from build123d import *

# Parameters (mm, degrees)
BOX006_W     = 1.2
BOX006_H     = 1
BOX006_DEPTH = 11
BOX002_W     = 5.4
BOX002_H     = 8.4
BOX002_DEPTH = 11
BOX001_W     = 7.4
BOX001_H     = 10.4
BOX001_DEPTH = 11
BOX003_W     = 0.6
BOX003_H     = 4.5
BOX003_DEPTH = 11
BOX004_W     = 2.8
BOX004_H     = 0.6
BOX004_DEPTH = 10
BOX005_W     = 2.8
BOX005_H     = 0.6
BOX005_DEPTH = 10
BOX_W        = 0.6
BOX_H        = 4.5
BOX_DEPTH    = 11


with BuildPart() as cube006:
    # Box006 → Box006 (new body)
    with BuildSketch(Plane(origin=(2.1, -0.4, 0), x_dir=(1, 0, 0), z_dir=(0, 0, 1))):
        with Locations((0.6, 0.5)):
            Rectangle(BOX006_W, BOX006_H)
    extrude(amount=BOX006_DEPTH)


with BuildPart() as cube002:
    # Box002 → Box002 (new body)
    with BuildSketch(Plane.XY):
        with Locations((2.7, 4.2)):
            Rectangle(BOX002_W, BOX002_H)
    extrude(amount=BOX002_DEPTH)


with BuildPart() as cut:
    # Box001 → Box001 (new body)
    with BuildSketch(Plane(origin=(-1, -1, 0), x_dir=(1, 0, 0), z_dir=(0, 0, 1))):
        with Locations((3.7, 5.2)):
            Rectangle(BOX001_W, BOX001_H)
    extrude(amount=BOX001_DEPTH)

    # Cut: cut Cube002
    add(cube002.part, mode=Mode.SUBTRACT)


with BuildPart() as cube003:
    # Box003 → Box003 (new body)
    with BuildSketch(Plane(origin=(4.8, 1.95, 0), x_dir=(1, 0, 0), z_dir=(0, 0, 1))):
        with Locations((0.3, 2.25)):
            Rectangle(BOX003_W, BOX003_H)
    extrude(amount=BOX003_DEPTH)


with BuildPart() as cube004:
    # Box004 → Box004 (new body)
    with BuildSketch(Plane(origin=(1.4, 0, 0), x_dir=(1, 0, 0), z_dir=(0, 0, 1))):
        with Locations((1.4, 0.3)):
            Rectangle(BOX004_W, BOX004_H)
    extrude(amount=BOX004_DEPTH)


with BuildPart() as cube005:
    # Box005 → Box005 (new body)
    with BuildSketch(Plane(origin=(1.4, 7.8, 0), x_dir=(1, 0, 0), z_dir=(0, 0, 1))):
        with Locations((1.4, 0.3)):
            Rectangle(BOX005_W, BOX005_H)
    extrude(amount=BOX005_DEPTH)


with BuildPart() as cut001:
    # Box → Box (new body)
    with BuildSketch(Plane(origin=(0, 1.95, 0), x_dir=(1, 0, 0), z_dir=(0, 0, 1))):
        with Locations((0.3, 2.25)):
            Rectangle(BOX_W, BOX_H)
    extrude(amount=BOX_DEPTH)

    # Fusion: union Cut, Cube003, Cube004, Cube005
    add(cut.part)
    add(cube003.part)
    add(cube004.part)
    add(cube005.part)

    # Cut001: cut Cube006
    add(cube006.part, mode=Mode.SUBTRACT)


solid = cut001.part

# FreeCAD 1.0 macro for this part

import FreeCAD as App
import Part
import Sketcher
Q = App.Units.Quantity


def add_polygon(sketch, points):
    """Adds a closed chain of lines whose ends are joined by coincident constraints."""
    first, n = sketch.GeometryCount, len(points)
    for a, b in zip(points, points[1:] + points[:1]):
        sketch.addGeometry(Part.LineSegment(App.Vector(*a, 0), App.Vector(*b, 0)), False)
    for i in range(n):
        sketch.addConstraint(Sketcher.Constraint("Coincident", first + i, 2, first + (i + 1) % n, 1))

doc = App.newDocument("Part")
params = doc.addObject("Spreadsheet::Sheet", "Params")
for row, (alias, value) in enumerate([
    ("sketch1_height", "1 mm"),
    ("sketch1_width", "1.2 mm"),
    ("pad1_length", "11 mm"),
    ("sketch2_width", "5.4 mm"),
    ("sketch2_height", "8.4 mm"),
    ("pad2_length", "11 mm"),
    ("sketch3_width", "7.4 mm"),
    ("sketch3_height", "10.4 mm"),
    ("pad3_length", "11 mm"),
    ("sketch4_width", "0.6 mm"),
    ("sketch4_height", "4.5 mm"),
    ("pad4_length", "11 mm"),
    ("sketch5_width", "2.8 mm"),
    ("sketch5_height", "0.6 mm"),
    ("pad5_length", "10 mm"),
    ("sketch6_width", "2.8 mm"),
    ("sketch6_height", "0.6 mm"),
    ("pad6_length", "10 mm"),
    ("sketch7_width", "0.6 mm"),
    ("sketch7_height", "4.5 mm"),
    ("pad7_length", "11 mm"),
], start=1):
    params.set(f"A{row}", alias)
    params.set(f"B{row}", "=" + value)
    params.setAlias(f"B{row}", alias)

body = doc.addObject("PartDesign::Body", "Body")

# Sketch on XY plane
sketch1 = body.newObject("Sketcher::SketchObject", "Sketch")
sketch1.AttachmentSupport = (doc.getObject("XY_Plane"), [""])
sketch1.MapMode = "FlatFace"
add_polygon(sketch1, [(2.1, 0.6), (2.1, -0.4), (3.3, -0.4), (3.3, 0.6)])  # lines 0-3
sketch1.addConstraint(Sketcher.Constraint("Vertical", 0))
sketch1.addConstraint(Sketcher.Constraint("Horizontal", 1))
sketch1.addConstraint(Sketcher.Constraint("Vertical", 2))
sketch1.addConstraint(Sketcher.Constraint("Horizontal", 3))
sketch1.addConstraint(Sketcher.Constraint("DistanceY", 0, 2, 0, 1, Q("1 mm")))
sketch1.addConstraint(Sketcher.Constraint("DistanceX", 1, 1, 1, 2, Q("1.2 mm")))
sketch1.addConstraint(Sketcher.Constraint("DistanceX", -1, 1, 0, 2, Q("2.1 mm")))
sketch1.addConstraint(Sketcher.Constraint("DistanceY", 0, 2, -1, 1, Q("0.4 mm")))
sketch1.setExpression("Constraints[8]", "Params.sketch1_height")
sketch1.setExpression("Constraints[9]", "Params.sketch1_width")
pad1 = body.newObject("PartDesign::Pad", "Pad")
pad1.Profile = sketch1
pad1.setExpression("Length", "Params.pad1_length")
body2 = doc.addObject("PartDesign::Body", "Body001")

# Sketch on XY plane
sketch2 = body2.newObject("Sketcher::SketchObject", "Sketch001")
sketch2.AttachmentSupport = (doc.getObject("XY_Plane001"), [""])
sketch2.MapMode = "FlatFace"
add_polygon(sketch2, [(0, 8), (0, 0), (5, 0), (5, 8)])  # lines 0-3
sketch2.addConstraint(Sketcher.Constraint("Vertical", 0))
sketch2.addConstraint(Sketcher.Constraint("Horizontal", 1))
sketch2.addConstraint(Sketcher.Constraint("Vertical", 2))
sketch2.addConstraint(Sketcher.Constraint("Horizontal", 3))
sketch2.addConstraint(Sketcher.Constraint("Coincident", 0, 2, -1, 1))
sketch2.addConstraint(Sketcher.Constraint("DistanceX", 1, 1, 1, 2, Q("5.4 mm")))
sketch2.addConstraint(Sketcher.Constraint("DistanceY", 0, 2, 0, 1, Q("8.4 mm")))
sketch2.setExpression("Constraints[9]", "Params.sketch2_width")
sketch2.setExpression("Constraints[10]", "Params.sketch2_height")
pad2 = body2.newObject("PartDesign::Pad", "Pad001")
pad2.Profile = sketch2
pad2.setExpression("Length", "Params.pad2_length")
body3 = doc.addObject("PartDesign::Body", "Body002")

# Sketch on XY plane
sketch3 = body3.newObject("Sketcher::SketchObject", "Sketch002")
sketch3.AttachmentSupport = (doc.getObject("XY_Plane002"), [""])
sketch3.MapMode = "FlatFace"
add_polygon(sketch3, [(-1, 9), (-1, -1), (6, -1), (6, 9)])  # lines 0-3
sketch3.addConstraint(Sketcher.Constraint("Vertical", 0))
sketch3.addConstraint(Sketcher.Constraint("Horizontal", 1))
sketch3.addConstraint(Sketcher.Constraint("Vertical", 2))
sketch3.addConstraint(Sketcher.Constraint("Horizontal", 3))
sketch3.addConstraint(Sketcher.Constraint("DistanceX", 1, 1, 1, 2, Q("7.4 mm")))
sketch3.addConstraint(Sketcher.Constraint("DistanceY", 0, 2, 0, 1, Q("10.4 mm")))
sketch3.addConstraint(Sketcher.Constraint("DistanceX", 0, 2, -1, 1, Q("1 mm")))
sketch3.addConstraint(Sketcher.Constraint("DistanceY", 0, 2, -1, 1, Q("1 mm")))
sketch3.setExpression("Constraints[8]", "Params.sketch3_width")
sketch3.setExpression("Constraints[9]", "Params.sketch3_height")
pad3 = body3.newObject("PartDesign::Pad", "Pad002")
pad3.Profile = sketch3
pad3.setExpression("Length", "Params.pad3_length")
doc.recompute()

boolean = body3.newObject("PartDesign::Boolean", "Boolean")
boolean.Type = "Cut"
boolean.addObjects([body2])
body4 = doc.addObject("PartDesign::Body", "Body003")

# Sketch on XY plane
sketch4 = body4.newObject("Sketcher::SketchObject", "Sketch003")
sketch4.AttachmentSupport = (doc.getObject("XY_Plane003"), [""])
sketch4.MapMode = "FlatFace"
add_polygon(sketch4, [(4.8, 6.5), (4.8, 1.9), (5.4, 1.9), (5.4, 6.5)])  # lines 0-3
sketch4.addConstraint(Sketcher.Constraint("Vertical", 0))
sketch4.addConstraint(Sketcher.Constraint("Horizontal", 1))
sketch4.addConstraint(Sketcher.Constraint("Vertical", 2))
sketch4.addConstraint(Sketcher.Constraint("Horizontal", 3))
sketch4.addConstraint(Sketcher.Constraint("DistanceX", 1, 1, 1, 2, Q("0.6 mm")))
sketch4.addConstraint(Sketcher.Constraint("DistanceY", 0, 2, 0, 1, Q("4.5 mm")))
sketch4.addConstraint(Sketcher.Constraint("DistanceX", -1, 1, 0, 2, Q("4.8 mm")))
sketch4.addConstraint(Sketcher.Constraint("DistanceY", -1, 1, 0, 2, Q("1.95 mm")))
sketch4.setExpression("Constraints[8]", "Params.sketch4_width")
sketch4.setExpression("Constraints[9]", "Params.sketch4_height")
pad4 = body4.newObject("PartDesign::Pad", "Pad003")
pad4.Profile = sketch4
pad4.setExpression("Length", "Params.pad4_length")
body5 = doc.addObject("PartDesign::Body", "Body004")

# Sketch on XY plane
sketch5 = body5.newObject("Sketcher::SketchObject", "Sketch004")
sketch5.AttachmentSupport = (doc.getObject("XY_Plane004"), [""])
sketch5.MapMode = "FlatFace"
add_polygon(sketch5, [(1.4, 0.6), (1.4, 0), (4.2, 0), (4.2, 0.6)])  # lines 0-3
sketch5.addConstraint(Sketcher.Constraint("Vertical", 0))
sketch5.addConstraint(Sketcher.Constraint("Horizontal", 1))
sketch5.addConstraint(Sketcher.Constraint("Vertical", 2))
sketch5.addConstraint(Sketcher.Constraint("Horizontal", 3))
sketch5.addConstraint(Sketcher.Constraint("PointOnObject", 0, 2, -1))
sketch5.addConstraint(Sketcher.Constraint("DistanceX", 1, 1, 1, 2, Q("2.8 mm")))
sketch5.addConstraint(Sketcher.Constraint("DistanceY", 0, 2, 0, 1, Q("0.6 mm")))
sketch5.addConstraint(Sketcher.Constraint("DistanceX", -1, 1, 0, 2, Q("1.4 mm")))
sketch5.setExpression("Constraints[9]", "Params.sketch5_width")
sketch5.setExpression("Constraints[10]", "Params.sketch5_height")
pad5 = body5.newObject("PartDesign::Pad", "Pad004")
pad5.Profile = sketch5
pad5.setExpression("Length", "Params.pad5_length")
body6 = doc.addObject("PartDesign::Body", "Body005")

# Sketch on XY plane
sketch6 = body6.newObject("Sketcher::SketchObject", "Sketch005")
sketch6.AttachmentSupport = (doc.getObject("XY_Plane005"), [""])
sketch6.MapMode = "FlatFace"
add_polygon(sketch6, [(1.4, 8.4), (1.4, 7.8), (4.2, 7.8), (4.2, 8.4)])  # lines 0-3
sketch6.addConstraint(Sketcher.Constraint("Vertical", 0))
sketch6.addConstraint(Sketcher.Constraint("Horizontal", 1))
sketch6.addConstraint(Sketcher.Constraint("Vertical", 2))
sketch6.addConstraint(Sketcher.Constraint("Horizontal", 3))
sketch6.addConstraint(Sketcher.Constraint("DistanceX", 1, 1, 1, 2, Q("2.8 mm")))
sketch6.addConstraint(Sketcher.Constraint("DistanceY", 0, 2, 0, 1, Q("0.6 mm")))
sketch6.addConstraint(Sketcher.Constraint("DistanceX", -1, 1, 0, 2, Q("1.4 mm")))
sketch6.addConstraint(Sketcher.Constraint("DistanceY", -1, 1, 0, 2, Q("7.8 mm")))
sketch6.setExpression("Constraints[8]", "Params.sketch6_width")
sketch6.setExpression("Constraints[9]", "Params.sketch6_height")
pad6 = body6.newObject("PartDesign::Pad", "Pad005")
pad6.Profile = sketch6
pad6.setExpression("Length", "Params.pad6_length")
body7 = doc.addObject("PartDesign::Body", "Body006")

# Sketch on XY plane
sketch7 = body7.newObject("Sketcher::SketchObject", "Sketch006")
sketch7.AttachmentSupport = (doc.getObject("XY_Plane006"), [""])
sketch7.MapMode = "FlatFace"
add_polygon(sketch7, [(0, 6.5), (0, 1.9), (0.6, 1.9), (0.6, 6.5)])  # lines 0-3
sketch7.addConstraint(Sketcher.Constraint("Vertical", 0))
sketch7.addConstraint(Sketcher.Constraint("Horizontal", 1))
sketch7.addConstraint(Sketcher.Constraint("Vertical", 2))
sketch7.addConstraint(Sketcher.Constraint("Horizontal", 3))
sketch7.addConstraint(Sketcher.Constraint("PointOnObject", 0, 2, -2))
sketch7.addConstraint(Sketcher.Constraint("DistanceX", 1, 1, 1, 2, Q("0.6 mm")))
sketch7.addConstraint(Sketcher.Constraint("DistanceY", 0, 2, 0, 1, Q("4.5 mm")))
sketch7.addConstraint(Sketcher.Constraint("DistanceY", -1, 1, 0, 2, Q("1.95 mm")))
sketch7.setExpression("Constraints[9]", "Params.sketch7_width")
sketch7.setExpression("Constraints[10]", "Params.sketch7_height")
pad7 = body7.newObject("PartDesign::Pad", "Pad006")
pad7.Profile = sketch7
pad7.setExpression("Length", "Params.pad7_length")
doc.recompute()

boolean2 = body7.newObject("PartDesign::Boolean", "Boolean001")
boolean2.Type = "Fuse"
boolean2.addObjects([body3])
doc.recompute()

boolean3 = body7.newObject("PartDesign::Boolean", "Boolean002")
boolean3.Type = "Fuse"
boolean3.addObjects([body4])
doc.recompute()

boolean4 = body7.newObject("PartDesign::Boolean", "Boolean003")
boolean4.Type = "Fuse"
boolean4.addObjects([body5])
doc.recompute()

boolean5 = body7.newObject("PartDesign::Boolean", "Boolean004")
boolean5.Type = "Fuse"
boolean5.addObjects([body6])
doc.recompute()

boolean6 = body7.newObject("PartDesign::Boolean", "Boolean005")
boolean6.Type = "Cut"
boolean6.addObjects([body])

doc.recompute()
